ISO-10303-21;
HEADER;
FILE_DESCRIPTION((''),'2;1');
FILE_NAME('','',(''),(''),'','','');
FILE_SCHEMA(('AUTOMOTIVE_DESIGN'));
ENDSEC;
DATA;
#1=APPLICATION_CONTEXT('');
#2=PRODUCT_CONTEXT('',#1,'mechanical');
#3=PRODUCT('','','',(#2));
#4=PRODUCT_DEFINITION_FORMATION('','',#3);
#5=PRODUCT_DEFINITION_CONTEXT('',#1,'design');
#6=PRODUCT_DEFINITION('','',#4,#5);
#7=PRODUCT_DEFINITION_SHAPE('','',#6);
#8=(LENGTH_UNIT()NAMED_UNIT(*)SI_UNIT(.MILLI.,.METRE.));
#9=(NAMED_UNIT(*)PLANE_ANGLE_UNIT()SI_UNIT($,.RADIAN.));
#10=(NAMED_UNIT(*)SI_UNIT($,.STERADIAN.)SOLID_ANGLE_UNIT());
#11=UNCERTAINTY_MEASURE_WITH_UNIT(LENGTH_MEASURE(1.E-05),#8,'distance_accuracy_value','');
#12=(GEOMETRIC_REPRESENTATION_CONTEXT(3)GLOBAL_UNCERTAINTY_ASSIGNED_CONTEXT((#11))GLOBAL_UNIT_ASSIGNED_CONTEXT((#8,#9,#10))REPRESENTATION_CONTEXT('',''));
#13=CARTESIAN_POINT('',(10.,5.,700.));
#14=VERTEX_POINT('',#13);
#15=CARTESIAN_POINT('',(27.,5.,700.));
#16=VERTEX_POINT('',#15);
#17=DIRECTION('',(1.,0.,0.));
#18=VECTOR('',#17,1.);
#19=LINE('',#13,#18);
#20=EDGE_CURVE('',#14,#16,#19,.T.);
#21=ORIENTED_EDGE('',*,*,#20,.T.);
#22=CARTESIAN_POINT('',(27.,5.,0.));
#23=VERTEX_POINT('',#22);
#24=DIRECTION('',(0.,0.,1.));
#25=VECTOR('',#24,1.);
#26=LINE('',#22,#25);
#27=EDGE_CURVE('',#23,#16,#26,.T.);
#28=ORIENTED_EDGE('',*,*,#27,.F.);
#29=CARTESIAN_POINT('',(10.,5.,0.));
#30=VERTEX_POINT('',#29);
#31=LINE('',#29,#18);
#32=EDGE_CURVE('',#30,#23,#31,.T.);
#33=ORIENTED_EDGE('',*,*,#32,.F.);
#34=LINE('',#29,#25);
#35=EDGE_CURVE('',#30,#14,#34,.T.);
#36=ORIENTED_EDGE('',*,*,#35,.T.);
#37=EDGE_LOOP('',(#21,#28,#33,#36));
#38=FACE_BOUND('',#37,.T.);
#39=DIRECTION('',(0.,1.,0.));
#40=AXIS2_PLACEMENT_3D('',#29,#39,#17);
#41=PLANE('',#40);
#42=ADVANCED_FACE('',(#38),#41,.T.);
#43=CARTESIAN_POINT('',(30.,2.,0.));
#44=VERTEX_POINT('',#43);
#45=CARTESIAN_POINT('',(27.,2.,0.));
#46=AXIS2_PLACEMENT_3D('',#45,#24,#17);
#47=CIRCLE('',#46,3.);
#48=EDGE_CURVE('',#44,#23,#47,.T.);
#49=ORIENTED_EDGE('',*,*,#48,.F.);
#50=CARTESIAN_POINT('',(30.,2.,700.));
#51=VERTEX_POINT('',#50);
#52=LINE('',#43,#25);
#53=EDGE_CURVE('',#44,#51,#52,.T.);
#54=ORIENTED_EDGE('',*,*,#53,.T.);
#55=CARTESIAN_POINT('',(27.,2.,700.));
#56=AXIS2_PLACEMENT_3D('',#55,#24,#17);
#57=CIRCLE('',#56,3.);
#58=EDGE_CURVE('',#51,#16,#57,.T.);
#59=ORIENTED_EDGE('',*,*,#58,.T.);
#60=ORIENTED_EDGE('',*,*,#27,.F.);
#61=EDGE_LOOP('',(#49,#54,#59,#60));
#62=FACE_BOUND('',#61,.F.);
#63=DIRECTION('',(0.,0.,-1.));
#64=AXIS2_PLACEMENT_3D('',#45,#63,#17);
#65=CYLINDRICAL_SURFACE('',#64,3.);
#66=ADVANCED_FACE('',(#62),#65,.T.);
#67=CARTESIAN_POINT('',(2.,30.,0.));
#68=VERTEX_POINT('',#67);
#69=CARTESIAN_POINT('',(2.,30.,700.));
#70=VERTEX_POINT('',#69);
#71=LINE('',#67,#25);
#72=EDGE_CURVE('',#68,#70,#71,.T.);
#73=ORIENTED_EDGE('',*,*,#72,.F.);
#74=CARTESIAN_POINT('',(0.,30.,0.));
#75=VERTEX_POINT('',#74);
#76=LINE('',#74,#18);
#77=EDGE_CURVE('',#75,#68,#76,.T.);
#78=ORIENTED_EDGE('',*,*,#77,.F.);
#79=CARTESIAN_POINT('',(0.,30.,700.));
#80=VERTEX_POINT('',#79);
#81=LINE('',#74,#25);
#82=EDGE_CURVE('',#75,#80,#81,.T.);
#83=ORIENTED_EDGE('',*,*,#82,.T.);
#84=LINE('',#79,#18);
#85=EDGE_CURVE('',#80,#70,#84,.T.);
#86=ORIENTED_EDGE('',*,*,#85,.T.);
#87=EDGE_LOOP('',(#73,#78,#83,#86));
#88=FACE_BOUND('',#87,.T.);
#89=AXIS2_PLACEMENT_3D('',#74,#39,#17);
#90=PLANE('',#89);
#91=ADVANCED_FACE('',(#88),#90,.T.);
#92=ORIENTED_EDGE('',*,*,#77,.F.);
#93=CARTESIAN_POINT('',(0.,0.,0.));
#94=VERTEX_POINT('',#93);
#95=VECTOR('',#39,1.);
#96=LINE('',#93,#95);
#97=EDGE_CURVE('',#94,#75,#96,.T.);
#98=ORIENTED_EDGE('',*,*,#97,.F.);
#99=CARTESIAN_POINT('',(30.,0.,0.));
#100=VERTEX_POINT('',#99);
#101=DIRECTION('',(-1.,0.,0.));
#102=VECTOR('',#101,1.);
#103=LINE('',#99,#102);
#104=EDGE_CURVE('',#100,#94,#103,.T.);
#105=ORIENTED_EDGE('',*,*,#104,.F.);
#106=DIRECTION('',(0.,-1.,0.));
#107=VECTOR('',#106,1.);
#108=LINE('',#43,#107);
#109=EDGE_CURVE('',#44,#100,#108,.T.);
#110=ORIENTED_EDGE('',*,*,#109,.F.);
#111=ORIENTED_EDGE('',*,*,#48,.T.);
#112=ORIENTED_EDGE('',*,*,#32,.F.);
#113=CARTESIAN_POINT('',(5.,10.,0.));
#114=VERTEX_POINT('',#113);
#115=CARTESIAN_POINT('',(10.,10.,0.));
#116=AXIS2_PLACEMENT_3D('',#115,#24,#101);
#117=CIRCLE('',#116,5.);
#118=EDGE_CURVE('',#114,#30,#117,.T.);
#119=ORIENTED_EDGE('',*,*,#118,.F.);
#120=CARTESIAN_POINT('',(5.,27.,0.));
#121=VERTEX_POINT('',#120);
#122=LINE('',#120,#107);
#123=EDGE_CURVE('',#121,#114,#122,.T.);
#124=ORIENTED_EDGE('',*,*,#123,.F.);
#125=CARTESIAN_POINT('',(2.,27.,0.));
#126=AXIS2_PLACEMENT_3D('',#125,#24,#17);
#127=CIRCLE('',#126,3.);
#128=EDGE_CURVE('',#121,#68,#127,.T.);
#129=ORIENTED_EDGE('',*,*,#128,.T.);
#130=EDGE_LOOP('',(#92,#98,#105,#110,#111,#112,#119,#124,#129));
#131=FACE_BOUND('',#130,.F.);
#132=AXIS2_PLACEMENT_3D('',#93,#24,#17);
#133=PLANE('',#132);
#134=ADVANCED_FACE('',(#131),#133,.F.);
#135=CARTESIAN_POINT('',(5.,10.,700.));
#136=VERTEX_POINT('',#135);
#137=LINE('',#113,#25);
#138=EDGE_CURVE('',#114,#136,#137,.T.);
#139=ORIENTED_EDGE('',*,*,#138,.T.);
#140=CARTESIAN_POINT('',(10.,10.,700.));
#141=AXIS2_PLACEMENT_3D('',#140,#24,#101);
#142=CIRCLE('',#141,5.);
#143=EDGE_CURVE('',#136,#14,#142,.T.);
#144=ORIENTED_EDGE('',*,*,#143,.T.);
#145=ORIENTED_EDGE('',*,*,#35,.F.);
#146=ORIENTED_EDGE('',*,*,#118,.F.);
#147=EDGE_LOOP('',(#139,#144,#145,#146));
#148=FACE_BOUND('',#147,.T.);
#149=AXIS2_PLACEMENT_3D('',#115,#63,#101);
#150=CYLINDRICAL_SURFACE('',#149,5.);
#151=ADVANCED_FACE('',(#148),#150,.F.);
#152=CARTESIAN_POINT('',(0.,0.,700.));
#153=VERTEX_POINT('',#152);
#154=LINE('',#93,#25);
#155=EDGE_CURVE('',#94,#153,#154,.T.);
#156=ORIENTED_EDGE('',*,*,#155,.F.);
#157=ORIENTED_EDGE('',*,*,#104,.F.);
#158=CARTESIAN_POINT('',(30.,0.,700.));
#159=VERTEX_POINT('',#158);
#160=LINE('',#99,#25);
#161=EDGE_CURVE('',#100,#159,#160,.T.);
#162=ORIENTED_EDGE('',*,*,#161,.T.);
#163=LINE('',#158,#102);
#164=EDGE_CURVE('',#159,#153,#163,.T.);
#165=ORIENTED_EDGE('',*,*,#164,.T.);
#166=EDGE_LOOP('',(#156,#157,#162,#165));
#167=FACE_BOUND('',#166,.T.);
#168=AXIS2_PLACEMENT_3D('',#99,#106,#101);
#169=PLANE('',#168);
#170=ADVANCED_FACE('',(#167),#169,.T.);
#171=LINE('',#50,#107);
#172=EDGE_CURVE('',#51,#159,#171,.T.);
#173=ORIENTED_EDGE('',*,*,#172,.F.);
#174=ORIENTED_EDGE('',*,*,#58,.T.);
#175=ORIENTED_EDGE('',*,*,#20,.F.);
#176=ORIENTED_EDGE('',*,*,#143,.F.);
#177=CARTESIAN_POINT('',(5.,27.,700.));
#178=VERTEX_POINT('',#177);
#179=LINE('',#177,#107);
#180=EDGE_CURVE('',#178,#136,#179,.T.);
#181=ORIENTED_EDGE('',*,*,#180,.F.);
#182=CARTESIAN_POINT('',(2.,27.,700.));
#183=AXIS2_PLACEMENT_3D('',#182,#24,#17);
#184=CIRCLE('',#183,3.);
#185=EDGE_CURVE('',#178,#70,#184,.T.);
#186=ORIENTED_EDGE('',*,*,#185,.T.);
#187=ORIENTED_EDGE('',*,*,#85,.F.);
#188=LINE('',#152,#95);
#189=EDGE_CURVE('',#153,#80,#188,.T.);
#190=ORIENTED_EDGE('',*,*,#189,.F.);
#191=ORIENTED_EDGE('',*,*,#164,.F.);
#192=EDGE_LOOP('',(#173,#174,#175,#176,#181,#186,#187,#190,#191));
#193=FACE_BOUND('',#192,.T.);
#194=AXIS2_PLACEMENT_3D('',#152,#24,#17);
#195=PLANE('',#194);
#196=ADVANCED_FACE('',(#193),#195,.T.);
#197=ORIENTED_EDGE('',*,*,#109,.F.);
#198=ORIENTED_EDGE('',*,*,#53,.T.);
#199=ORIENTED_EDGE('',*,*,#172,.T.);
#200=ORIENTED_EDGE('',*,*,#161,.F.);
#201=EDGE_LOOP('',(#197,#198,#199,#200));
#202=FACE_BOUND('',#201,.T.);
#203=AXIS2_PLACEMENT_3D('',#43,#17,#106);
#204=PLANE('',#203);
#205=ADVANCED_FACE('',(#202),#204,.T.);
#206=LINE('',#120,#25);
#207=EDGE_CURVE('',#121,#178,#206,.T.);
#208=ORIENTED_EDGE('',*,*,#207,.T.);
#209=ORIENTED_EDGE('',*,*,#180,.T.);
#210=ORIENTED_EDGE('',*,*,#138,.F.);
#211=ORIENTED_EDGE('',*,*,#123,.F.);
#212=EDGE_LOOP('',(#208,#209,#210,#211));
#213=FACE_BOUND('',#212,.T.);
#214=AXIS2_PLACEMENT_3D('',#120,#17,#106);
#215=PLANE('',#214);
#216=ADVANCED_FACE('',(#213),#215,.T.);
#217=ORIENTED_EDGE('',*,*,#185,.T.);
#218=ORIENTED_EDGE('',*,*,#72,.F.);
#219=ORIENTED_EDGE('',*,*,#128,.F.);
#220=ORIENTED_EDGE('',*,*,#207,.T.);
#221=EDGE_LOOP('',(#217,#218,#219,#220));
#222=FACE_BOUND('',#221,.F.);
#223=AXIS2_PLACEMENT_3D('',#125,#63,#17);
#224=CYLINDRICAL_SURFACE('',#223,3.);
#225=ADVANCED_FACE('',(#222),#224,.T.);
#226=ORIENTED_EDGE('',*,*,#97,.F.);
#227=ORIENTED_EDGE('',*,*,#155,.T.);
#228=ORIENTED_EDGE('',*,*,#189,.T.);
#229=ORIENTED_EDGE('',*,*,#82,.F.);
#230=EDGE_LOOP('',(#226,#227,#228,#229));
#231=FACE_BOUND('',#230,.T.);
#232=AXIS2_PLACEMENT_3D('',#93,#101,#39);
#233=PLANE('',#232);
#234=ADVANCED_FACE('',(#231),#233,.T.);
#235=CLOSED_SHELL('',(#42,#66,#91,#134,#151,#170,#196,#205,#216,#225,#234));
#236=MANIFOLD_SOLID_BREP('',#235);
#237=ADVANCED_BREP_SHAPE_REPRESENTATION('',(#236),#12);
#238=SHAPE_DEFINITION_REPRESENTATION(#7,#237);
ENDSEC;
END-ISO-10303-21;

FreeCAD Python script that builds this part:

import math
import FreeCAD as App
import Part
import Sketcher

V = App.Vector
Q = App.Units.Quantity

doc = App.newDocument("Part")
body = doc.addObject("PartDesign::Body", "Body")

sketch1 = body.newObject("Sketcher::SketchObject", "Sketch")
sketch1.AttachmentSupport = (doc.getObject("XY_Plane"), [""])
sketch1.MapMode = "FlatFace"
sketch1.addGeometry([
    Part.LineSegment(V(0, 0, 0), V(30, 0, 0)),
    Part.LineSegment(V(30, 0, 0), V(30, 2, 0)),
    Part.ArcOfCircle(Part.Circle(V(27, 2, 0), V(0, 0, 1), 3), math.radians(0), math.radians(90)),
    Part.LineSegment(V(27, 5, 0), V(10, 5, 0)),
    Part.ArcOfCircle(Part.Circle(V(10, 10, 0), V(0, 0, 1), 5), math.radians(180), math.radians(270)),
    Part.LineSegment(V(5, 10, 0), V(5, 27, 0)),
    Part.ArcOfCircle(Part.Circle(V(2, 27, 0), V(0, 0, 1), 3), math.radians(0), math.radians(90)),
    Part.LineSegment(V(2, 30, 0), V(0, 30, 0)),
    Part.LineSegment(V(0, 30, 0), V(0, 0, 0)),
], False)
sketch1.addConstraint([
    Sketcher.Constraint("Coincident", 0, 2, 1, 1),
    Sketcher.Constraint("Tangent", 1, 2, 2, 1),
    Sketcher.Constraint("Tangent", 2, 2, 3, 1),
    Sketcher.Constraint("Tangent", 3, 2, 4, 2),
    Sketcher.Constraint("Tangent", 4, 1, 5, 1),
    Sketcher.Constraint("Tangent", 5, 2, 6, 1),
    Sketcher.Constraint("Tangent", 6, 2, 7, 1),
    Sketcher.Constraint("Coincident", 7, 2, 8, 1),
    Sketcher.Constraint("Coincident", 8, 2, 0, 1),
    Sketcher.Constraint("Horizontal", 0),
    Sketcher.Constraint("Vertical", 1),
    Sketcher.Constraint("Horizontal", 3),
    Sketcher.Constraint("Vertical", 5),
    Sketcher.Constraint("Horizontal", 7),
    Sketcher.Constraint("Vertical", 8),
    Sketcher.Constraint("Coincident", 8, 2, -1, 1),
    Sketcher.Constraint("Equal", 2, 6),
    Sketcher.Constraint("Equal", 7, 1),
    Sketcher.Constraint("Equal", 3, 5),
    Sketcher.Constraint("Radius", 2, Q("3 mm")),
    Sketcher.Constraint("Radius", 4, Q("5 mm")),
    Sketcher.Constraint("DistanceX", 0, 1, 0, 2, Q("30 mm")),
    Sketcher.Constraint("DistanceY", -1, 1, 2, 2, Q("5 mm")),
])
pad1 = body.newObject("PartDesign::Pad", "Pad")
pad1.Profile = sketch1
pad1.Length = 700

doc.recompute()
